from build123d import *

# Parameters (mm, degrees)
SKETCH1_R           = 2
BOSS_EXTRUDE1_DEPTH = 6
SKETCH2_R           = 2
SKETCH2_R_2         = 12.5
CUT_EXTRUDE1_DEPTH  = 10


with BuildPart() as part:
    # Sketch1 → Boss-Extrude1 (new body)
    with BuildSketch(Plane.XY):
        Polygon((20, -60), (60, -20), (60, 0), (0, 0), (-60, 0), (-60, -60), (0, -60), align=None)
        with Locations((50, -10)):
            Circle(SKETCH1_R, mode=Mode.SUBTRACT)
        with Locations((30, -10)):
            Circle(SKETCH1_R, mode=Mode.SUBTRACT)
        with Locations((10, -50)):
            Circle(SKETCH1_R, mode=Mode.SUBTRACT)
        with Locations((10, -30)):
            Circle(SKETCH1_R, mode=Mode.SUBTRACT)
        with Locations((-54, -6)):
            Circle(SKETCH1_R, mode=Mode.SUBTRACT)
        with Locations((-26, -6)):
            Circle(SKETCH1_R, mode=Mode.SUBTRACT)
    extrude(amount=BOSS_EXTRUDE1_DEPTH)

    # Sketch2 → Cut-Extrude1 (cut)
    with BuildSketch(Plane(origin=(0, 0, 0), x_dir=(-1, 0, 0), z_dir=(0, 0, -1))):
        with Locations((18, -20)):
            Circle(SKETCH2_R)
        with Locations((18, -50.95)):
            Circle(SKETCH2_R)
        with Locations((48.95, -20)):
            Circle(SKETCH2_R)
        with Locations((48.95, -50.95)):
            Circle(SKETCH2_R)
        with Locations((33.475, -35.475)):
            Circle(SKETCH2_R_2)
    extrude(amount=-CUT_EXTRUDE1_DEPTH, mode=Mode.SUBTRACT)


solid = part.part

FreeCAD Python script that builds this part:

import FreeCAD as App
import Part
import Sketcher
from FreeCAD import Vector

doc = App.newDocument("Part")
body = doc.addObject("PartDesign::Body", "Body")

sketch1 = body.newObject("Sketcher::SketchObject", "Sketch")
sketch1.AttachmentSupport = (doc.getObject("XY_Plane"), [""])
sketch1.MapMode = "FlatFace"
sketch1.addGeometry(Part.LineSegment(Vector(20, -60, 0), Vector(60, -20, 0)), False)
sketch1.addGeometry(Part.LineSegment(Vector(60, -20, 0), Vector(60, 0, 0)), False)
sketch1.addGeometry(Part.LineSegment(Vector(60, 0, 0), Vector(-60, 0, 0)), False)
sketch1.addGeometry(Part.LineSegment(Vector(-60, 0, 0), Vector(-60, -60, 0)), False)
sketch1.addGeometry(Part.LineSegment(Vector(-60, -60, 0), Vector(20, -60, 0)), False)
sketch1.addGeometry(Part.Circle(Vector(10, -50, 0), Vector(0, 0, 1), 2), False)
sketch1.addGeometry(Part.Circle(Vector(10, -30, 0), Vector(0, 0, 1), 2), False)
sketch1.addGeometry(Part.Circle(Vector(-54, -6, 0), Vector(0, 0, 1), 2), False)
sketch1.addGeometry(Part.Circle(Vector(-26, -6, 0), Vector(0, 0, 1), 2), False)
sketch1.addGeometry(Part.Circle(Vector(30, -10, 0), Vector(0, 0, 1), 2), False)
sketch1.addGeometry(Part.Circle(Vector(50, -10, 0), Vector(0, 0, 1), 2), False)
sketch1.addConstraint(Sketcher.Constraint("Coincident", 0, 2, 1, 1))
sketch1.addConstraint(Sketcher.Constraint("Coincident", 1, 2, 2, 1))
sketch1.addConstraint(Sketcher.Constraint("Coincident", 2, 2, 3, 1))
sketch1.addConstraint(Sketcher.Constraint("Coincident", 3, 2, 4, 1))
sketch1.addConstraint(Sketcher.Constraint("Coincident", 4, 2, 0, 1))
sketch1.addConstraint(Sketcher.Constraint("Vertical", 1))
sketch1.addConstraint(Sketcher.Constraint("Horizontal", 2))
sketch1.addConstraint(Sketcher.Constraint("Vertical", 3))
sketch1.addConstraint(Sketcher.Constraint("Horizontal", 4))
sketch1.addConstraint(Sketcher.Constraint("Equal", 5, 6))
sketch1.addConstraint(Sketcher.Constraint("Equal", 6, 7))
sketch1.addConstraint(Sketcher.Constraint("Equal", 7, 8))
sketch1.addConstraint(Sketcher.Constraint("Equal", 8, 9))
sketch1.addConstraint(Sketcher.Constraint("Equal", 9, 10))
sketch1.addConstraint(Sketcher.Constraint("Symmetric", 1, 2, 2, 2, -1, 1))
sketch1.addConstraint(Sketcher.Constraint("Horizontal", 7, 3, 8, 3))
sketch1.addConstraint(Sketcher.Constraint("Horizontal", 9, 3, 10, 3))
sketch1.addConstraint(Sketcher.Constraint("Vertical", 5, 3, 6, 3))
sketch1.addConstraint(Sketcher.Constraint("Diameter", 5, 4.0))
sketch1.addConstraint(Sketcher.Constraint("DistanceX", 2, 2, 2, 1, 120.0))
sketch1.addConstraint(Sketcher.Constraint("DistanceX", 4, 1, 4, 2, 80.0))
sketch1.addConstraint(Sketcher.Constraint("DistanceY", 1, 1, 1, 2, 20.0))
sketch1.addConstraint(Sketcher.Constraint("DistanceY", 3, 2, 3, 1, 60.0))
sketch1.addConstraint(Sketcher.Constraint("DistanceX", -1, 1, 5, 3, 10.0))
sketch1.addConstraint(Sketcher.Constraint("DistanceY", 5, 3, -1, 1, 50.0))
sketch1.addConstraint(Sketcher.Constraint("DistanceY", 6, 3, -1, 1, 30.0))
sketch1.addConstraint(Sketcher.Constraint("DistanceX", 7, 3, -1, 1, 54.0))
sketch1.addConstraint(Sketcher.Constraint("DistanceY", 7, 3, -1, 1, 6.0))
sketch1.addConstraint(Sketcher.Constraint("DistanceX", 8, 3, -1, 1, 26.0))
sketch1.addConstraint(Sketcher.Constraint("DistanceX", -1, 1, 9, 3, 30.0))
sketch1.addConstraint(Sketcher.Constraint("DistanceY", 9, 3, -1, 1, 10.0))
sketch1.addConstraint(Sketcher.Constraint("DistanceX", -1, 1, 10, 3, 50.0))
pad1 = body.newObject("PartDesign::Pad", "Pad")
pad1.Profile = sketch1
pad1.Length = 6

sketch2 = body.newObject("Sketcher::SketchObject", "Sketch001")
sketch2.AttachmentSupport = (doc.getObject("XY_Plane"), [""])
sketch2.MapMode = "FlatFace"
sketch2.addGeometry(Part.Circle(Vector(-18, -20, 0), Vector(0, 0, 1), 2), False)
sketch2.addGeometry(Part.Circle(Vector(-18, -51, 0), Vector(0, 0, 1), 2), False)
sketch2.addGeometry(Part.Circle(Vector(-49, -20, 0), Vector(0, 0, 1), 2), False)
sketch2.addGeometry(Part.Circle(Vector(-49, -51, 0), Vector(0, 0, 1), 2), False)
sketch2.addGeometry(Part.Circle(Vector(-33.5, -35.5, 0), Vector(0, 0, 1), 12.5), False)
sketch2.addConstraint(Sketcher.Constraint("Equal", 0, 1))
sketch2.addConstraint(Sketcher.Constraint("Equal", 1, 2))
sketch2.addConstraint(Sketcher.Constraint("Equal", 2, 3))
sketch2.addConstraint(Sketcher.Constraint("Horizontal", 0, 3, 2, 3))
sketch2.addConstraint(Sketcher.Constraint("Horizontal", 1, 3, 3, 3))
sketch2.addConstraint(Sketcher.Constraint("Vertical", 0, 3, 1, 3))
sketch2.addConstraint(Sketcher.Constraint("Vertical", 2, 3, 3, 3))
sketch2.addConstraint(Sketcher.Constraint("Diameter", 0, 4.0))
sketch2.addConstraint(Sketcher.Constraint("Diameter", 4, 25.0))
sketch2.addConstraint(Sketcher.Constraint("DistanceX", 0, 3, -1, 1, 18.0))
sketch2.addConstraint(Sketcher.Constraint("DistanceY", 0, 3, -1, 1, 20.0))
sketch2.addConstraint(Sketcher.Constraint("DistanceY", 1, 3, -1, 1, 50.95))
sketch2.addConstraint(Sketcher.Constraint("DistanceX", 2, 3, -1, 1, 48.95))
sketch2.addConstraint(Sketcher.Constraint("DistanceX", 4, 3, -1, 1, 33.475))
sketch2.addConstraint(Sketcher.Constraint("DistanceY", 4, 3, -1, 1, 35.475))
pocket1 = body.newObject("PartDesign::Pocket", "Pocket")
pocket1.Profile = sketch2
pocket1.Length = 10
pocket1.Reversed = True

doc.recompute()
